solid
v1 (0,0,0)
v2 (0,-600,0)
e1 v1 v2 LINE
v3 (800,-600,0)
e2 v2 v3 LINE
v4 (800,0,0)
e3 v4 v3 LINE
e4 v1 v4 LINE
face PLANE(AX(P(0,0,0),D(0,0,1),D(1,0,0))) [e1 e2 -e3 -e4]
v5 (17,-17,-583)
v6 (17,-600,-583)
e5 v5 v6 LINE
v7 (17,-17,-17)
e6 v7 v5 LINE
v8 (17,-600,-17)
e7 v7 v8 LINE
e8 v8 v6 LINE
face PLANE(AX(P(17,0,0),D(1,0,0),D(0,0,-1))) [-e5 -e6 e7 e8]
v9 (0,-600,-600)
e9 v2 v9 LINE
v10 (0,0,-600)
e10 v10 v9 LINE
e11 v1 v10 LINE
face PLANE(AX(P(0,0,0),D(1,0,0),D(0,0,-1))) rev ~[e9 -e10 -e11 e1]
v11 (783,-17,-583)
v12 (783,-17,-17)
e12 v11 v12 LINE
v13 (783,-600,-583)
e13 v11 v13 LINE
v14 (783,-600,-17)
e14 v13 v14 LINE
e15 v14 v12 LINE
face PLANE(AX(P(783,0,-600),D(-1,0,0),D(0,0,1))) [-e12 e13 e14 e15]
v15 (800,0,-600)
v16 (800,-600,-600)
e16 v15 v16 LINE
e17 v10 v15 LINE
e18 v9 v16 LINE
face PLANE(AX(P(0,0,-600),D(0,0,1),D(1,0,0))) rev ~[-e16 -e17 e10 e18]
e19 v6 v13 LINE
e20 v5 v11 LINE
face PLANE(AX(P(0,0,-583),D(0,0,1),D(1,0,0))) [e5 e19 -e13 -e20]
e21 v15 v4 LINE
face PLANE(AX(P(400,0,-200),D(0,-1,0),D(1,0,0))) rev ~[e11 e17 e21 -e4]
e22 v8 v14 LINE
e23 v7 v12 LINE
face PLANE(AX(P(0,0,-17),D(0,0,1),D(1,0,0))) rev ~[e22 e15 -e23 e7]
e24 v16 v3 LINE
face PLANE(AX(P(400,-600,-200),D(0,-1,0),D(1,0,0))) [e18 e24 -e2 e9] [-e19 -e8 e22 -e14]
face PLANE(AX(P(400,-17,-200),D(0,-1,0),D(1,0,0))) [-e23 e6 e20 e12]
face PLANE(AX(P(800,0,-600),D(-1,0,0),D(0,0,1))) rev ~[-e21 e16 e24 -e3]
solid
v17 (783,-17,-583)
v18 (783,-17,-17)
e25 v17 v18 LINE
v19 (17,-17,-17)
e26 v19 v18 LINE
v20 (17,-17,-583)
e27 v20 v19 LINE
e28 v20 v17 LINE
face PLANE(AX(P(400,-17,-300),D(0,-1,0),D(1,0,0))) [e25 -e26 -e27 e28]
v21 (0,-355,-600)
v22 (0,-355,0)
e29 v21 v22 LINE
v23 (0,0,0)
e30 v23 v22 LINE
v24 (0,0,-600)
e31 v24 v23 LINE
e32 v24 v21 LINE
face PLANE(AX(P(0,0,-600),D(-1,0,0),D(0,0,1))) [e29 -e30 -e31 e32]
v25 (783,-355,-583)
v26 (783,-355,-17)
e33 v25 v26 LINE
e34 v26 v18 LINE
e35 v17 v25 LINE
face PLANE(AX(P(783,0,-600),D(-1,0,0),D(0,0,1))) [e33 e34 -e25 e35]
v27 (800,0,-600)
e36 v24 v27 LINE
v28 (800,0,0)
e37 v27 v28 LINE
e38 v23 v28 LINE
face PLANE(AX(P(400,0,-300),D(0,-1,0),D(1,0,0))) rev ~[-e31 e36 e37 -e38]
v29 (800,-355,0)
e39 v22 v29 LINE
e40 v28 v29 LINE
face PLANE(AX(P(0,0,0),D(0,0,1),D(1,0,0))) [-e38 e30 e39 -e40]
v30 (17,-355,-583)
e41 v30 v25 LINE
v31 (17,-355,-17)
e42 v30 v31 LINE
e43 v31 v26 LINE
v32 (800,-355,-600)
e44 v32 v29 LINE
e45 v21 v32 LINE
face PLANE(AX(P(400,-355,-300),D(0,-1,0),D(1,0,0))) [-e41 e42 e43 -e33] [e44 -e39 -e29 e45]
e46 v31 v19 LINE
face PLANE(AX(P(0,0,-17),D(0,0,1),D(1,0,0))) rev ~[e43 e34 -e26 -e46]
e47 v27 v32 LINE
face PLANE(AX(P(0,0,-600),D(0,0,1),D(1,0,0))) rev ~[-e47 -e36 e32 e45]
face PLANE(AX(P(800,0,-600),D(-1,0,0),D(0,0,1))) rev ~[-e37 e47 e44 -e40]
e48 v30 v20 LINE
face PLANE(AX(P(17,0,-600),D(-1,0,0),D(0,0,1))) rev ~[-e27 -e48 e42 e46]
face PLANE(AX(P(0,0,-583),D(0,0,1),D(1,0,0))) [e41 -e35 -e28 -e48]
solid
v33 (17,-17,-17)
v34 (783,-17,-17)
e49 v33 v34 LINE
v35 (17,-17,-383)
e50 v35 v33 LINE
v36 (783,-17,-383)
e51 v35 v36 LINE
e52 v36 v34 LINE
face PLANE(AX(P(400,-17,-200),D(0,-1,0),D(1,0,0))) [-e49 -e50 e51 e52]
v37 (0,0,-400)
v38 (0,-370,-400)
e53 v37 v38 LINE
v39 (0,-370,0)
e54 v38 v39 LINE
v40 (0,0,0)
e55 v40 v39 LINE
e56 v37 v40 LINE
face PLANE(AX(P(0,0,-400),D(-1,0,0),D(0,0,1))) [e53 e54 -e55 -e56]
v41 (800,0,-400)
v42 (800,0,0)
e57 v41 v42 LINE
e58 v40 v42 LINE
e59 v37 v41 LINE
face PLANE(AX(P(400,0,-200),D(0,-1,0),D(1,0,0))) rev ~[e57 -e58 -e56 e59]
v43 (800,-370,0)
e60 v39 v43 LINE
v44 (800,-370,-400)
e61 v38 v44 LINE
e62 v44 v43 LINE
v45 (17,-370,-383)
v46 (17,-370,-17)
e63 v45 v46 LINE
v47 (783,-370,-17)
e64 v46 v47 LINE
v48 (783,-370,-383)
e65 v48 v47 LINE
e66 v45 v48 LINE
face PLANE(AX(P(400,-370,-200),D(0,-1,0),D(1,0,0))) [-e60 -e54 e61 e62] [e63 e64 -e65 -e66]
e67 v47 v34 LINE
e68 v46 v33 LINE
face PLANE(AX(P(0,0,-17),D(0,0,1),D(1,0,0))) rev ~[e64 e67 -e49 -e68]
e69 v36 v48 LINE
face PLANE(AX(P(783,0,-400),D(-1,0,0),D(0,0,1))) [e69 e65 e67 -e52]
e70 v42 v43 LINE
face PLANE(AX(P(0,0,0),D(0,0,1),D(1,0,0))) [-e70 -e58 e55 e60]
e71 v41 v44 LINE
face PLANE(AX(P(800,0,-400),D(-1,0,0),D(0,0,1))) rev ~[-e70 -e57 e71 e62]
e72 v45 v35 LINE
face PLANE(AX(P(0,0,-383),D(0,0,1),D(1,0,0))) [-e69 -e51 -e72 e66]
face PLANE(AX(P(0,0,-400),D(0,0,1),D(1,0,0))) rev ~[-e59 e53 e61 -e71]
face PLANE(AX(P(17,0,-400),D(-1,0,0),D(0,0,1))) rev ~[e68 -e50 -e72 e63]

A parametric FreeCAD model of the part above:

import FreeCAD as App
import Part
import Sketcher
from FreeCAD import Vector
Q = App.Units.Quantity


def faces_at(feature, points):
    """Names of the faces that lie closest to the given points."""
    faces = feature.Shape.Faces
    near = lambda p: min(range(len(faces)), key=lambda i: faces[i].distToShape(Part.Vertex(*p))[0])
    return sorted({f"Face{near(p) + 1}" for p in points})


def add_polygon(sketch, points):
    """Adds a closed chain of lines whose ends are joined by coincident constraints."""
    first, n = sketch.GeometryCount, len(points)
    for a, b in zip(points, points[1:] + points[:1]):
        sketch.addGeometry(Part.LineSegment(App.Vector(*a, 0), App.Vector(*b, 0)), False)
    for i in range(n):
        sketch.addConstraint(Sketcher.Constraint("Coincident", first + i, 2, first + (i + 1) % n, 1))

doc = App.newDocument("Part")
body = doc.addObject("PartDesign::Body", "Body")

sketch1 = body.newObject("Sketcher::SketchObject", "Sketch")
sketch1.AttachmentSupport = (doc.getObject("XZ_Plane"), [""])
sketch1.MapMode = "FlatFace"
add_polygon(sketch1, [(0, 0), (0, -600), (800, -600), (800, 0)])
sketch1.addConstraint(Sketcher.Constraint("Vertical", 0))
sketch1.addConstraint(Sketcher.Constraint("Horizontal", 1))
sketch1.addConstraint(Sketcher.Constraint("Vertical", 2))
sketch1.addConstraint(Sketcher.Constraint("Horizontal", 3))
sketch1.addConstraint(Sketcher.Constraint("Coincident", 3, 2, -1, 1))
sketch1.addConstraint(Sketcher.Constraint("DistanceX", 1, 1, 1, 2, Q("800 mm")))
sketch1.addConstraint(Sketcher.Constraint("DistanceY", 0, 2, 0, 1, Q("600 mm")))
pad1 = body.newObject("PartDesign::Pad", "Pad")
pad1.Profile = sketch1
pad1.Length = 355
doc.recompute()

thickness = body.newObject("PartDesign::Thickness", "Thickness")
thickness.Base = (pad1, faces_at(pad1, [(400, -355, -300)]))
thickness.Value = 17
thickness.Reversed = True
thickness.Join = "Arc"
body2 = doc.addObject("PartDesign::Body", "Body001")

sketch2 = body2.newObject("Sketcher::SketchObject", "Sketch001")
sketch2.AttachmentSupport = (doc.getObject("XZ_Plane001"), [""])
sketch2.MapMode = "FlatFace"
add_polygon(sketch2, [(0, 0), (0, -400), (800, -400), (800, 0)])
sketch2.addConstraint(Sketcher.Constraint("Vertical", 0))
sketch2.addConstraint(Sketcher.Constraint("Horizontal", 1))
sketch2.addConstraint(Sketcher.Constraint("Vertical", 2))
sketch2.addConstraint(Sketcher.Constraint("Horizontal", 3))
sketch2.addConstraint(Sketcher.Constraint("Coincident", 3, 2, -1, 1))
sketch2.addConstraint(Sketcher.Constraint("DistanceX", 1, 1, 1, 2, Q("800 mm")))
sketch2.addConstraint(Sketcher.Constraint("DistanceY", 0, 2, 0, 1, Q("400 mm")))
pad2 = body2.newObject("PartDesign::Pad", "Pad001")
pad2.Profile = sketch2
pad2.Length = 370
doc.recompute()

thickness2 = body2.newObject("PartDesign::Thickness", "Thickness001")
thickness2.Base = (pad2, faces_at(pad2, [(400, -370, -200)]))
thickness2.Value = 17
thickness2.Reversed = True
thickness2.Join = "Arc"
body3 = doc.addObject("PartDesign::Body", "Body002")

sketch3 = body3.newObject("Sketcher::SketchObject", "Sketch002")
sketch3.AttachmentSupport = (doc.getObject("XZ_Plane002"), [""])
sketch3.MapMode = "FlatFace"
add_polygon(sketch3, [(0, 0), (0, -600), (800, -600), (800, 0)])
sketch3.addConstraint(Sketcher.Constraint("Vertical", 0))
sketch3.addConstraint(Sketcher.Constraint("Horizontal", 1))
sketch3.addConstraint(Sketcher.Constraint("Vertical", 2))
sketch3.addConstraint(Sketcher.Constraint("Horizontal", 3))
sketch3.addConstraint(Sketcher.Constraint("Coincident", 3, 2, -1, 1))
sketch3.addConstraint(Sketcher.Constraint("DistanceX", 1, 1, 1, 2, Q("800 mm")))
sketch3.addConstraint(Sketcher.Constraint("DistanceY", 0, 2, 0, 1, Q("600 mm")))
pad3 = body3.newObject("PartDesign::Pad", "Pad002")
pad3.Profile = sketch3
pad3.Length = 600
doc.recompute()

thickness3 = body3.newObject("PartDesign::Thickness", "Thickness002")
thickness3.Base = (pad3, faces_at(pad3, [(400, -600, -300)]))
thickness3.Value = 17
thickness3.Reversed = True
thickness3.Join = "Arc"

doc.recompute()
